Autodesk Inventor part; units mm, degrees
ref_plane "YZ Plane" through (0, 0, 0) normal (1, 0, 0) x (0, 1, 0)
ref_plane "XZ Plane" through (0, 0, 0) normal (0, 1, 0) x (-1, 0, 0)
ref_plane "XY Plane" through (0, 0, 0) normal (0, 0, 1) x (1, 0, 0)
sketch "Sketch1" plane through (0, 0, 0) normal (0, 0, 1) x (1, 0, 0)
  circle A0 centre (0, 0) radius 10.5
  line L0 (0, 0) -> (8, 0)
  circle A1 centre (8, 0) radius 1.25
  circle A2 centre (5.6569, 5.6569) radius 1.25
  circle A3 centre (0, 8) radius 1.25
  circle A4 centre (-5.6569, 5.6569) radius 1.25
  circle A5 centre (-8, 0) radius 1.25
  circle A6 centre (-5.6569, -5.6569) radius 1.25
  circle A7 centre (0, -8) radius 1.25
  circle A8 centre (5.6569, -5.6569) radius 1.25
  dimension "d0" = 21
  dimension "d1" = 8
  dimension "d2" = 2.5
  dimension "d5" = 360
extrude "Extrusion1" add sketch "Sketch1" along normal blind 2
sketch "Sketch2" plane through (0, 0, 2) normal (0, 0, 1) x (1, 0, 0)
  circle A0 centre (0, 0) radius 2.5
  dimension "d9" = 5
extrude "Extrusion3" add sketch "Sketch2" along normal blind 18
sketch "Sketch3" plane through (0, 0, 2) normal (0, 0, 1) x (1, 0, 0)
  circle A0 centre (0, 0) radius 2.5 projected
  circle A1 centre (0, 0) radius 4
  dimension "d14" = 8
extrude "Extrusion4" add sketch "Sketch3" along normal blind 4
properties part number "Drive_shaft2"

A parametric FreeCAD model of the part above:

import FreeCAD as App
import Part
import Sketcher
from FreeCAD import Vector
Q = App.Units.Quantity

doc = App.newDocument("Part")
body = doc.addObject("PartDesign::Body", "Body")

sketch1 = doc.addObject("Sketcher::SketchObject", "Sketch")
body.addObject(sketch1)
sketch1.AttachmentSupport = (doc.XY_Plane, [""])
sketch1.MapMode = "FlatFace"
sketch1.addGeometry([
    Part.Circle(Vector(0, 0, 0), Vector(0, 0, 1), 10.5),
    Part.Circle(Vector(-5.7, -5.7, 0), Vector(0, 0, 1), 1.2),
    Part.Circle(Vector(0, -8, 0), Vector(0, 0, 1), 1.2),
    Part.Circle(Vector(5.7, -5.7, 0), Vector(0, 0, 1), 1.2),
    Part.Circle(Vector(-8, 0, 0), Vector(0, 0, 1), 1.2),
    Part.Circle(Vector(-5.7, 5.7, 0), Vector(0, 0, 1), 1.2),
    Part.Circle(Vector(8, 0, 0), Vector(0, 0, 1), 1.2),
    Part.Circle(Vector(0, 8, 0), Vector(0, 0, 1), 1.2),
    Part.Circle(Vector(5.7, 5.7, 0), Vector(0, 0, 1), 1.2),
], False)
sketch1.addConstraint([
    Sketcher.Constraint("Coincident", 0, 3, -1, 1),
    Sketcher.Constraint("Equal", 1, 2),
    Sketcher.Constraint("Equal", 2, 3),
    Sketcher.Constraint("Equal", 3, 4),
    Sketcher.Constraint("Equal", 4, 5),
    Sketcher.Constraint("Equal", 5, 6),
    Sketcher.Constraint("Equal", 6, 7),
    Sketcher.Constraint("Equal", 7, 8),
    Sketcher.Constraint("Symmetric", 3, 3, 5, 3, -1, 1),
    Sketcher.Constraint("Symmetric", 4, 3, 6, 3, -1, 1),
    Sketcher.Constraint("Symmetric", 2, 3, 7, 3, -1, 1),
    Sketcher.Constraint("Symmetric", 1, 3, 8, 3, -1, 1),
    Sketcher.Constraint("Symmetric", 1, 3, 3, 3, -2),
    Sketcher.Constraint("PointOnObject", 2, 3, -2),
    Sketcher.Constraint("PointOnObject", 4, 3, -1),
    Sketcher.Constraint("Diameter", 0, Q("21 mm")),
    Sketcher.Constraint("Diameter", 1, Q("2.5 mm")),
    Sketcher.Constraint("DistanceY", 2, 3, -1, 1, Q("8 mm")),
    Sketcher.Constraint("DistanceX", 4, 3, -1, 1, Q("8 mm")),
    Sketcher.Constraint("DistanceX", 1, 3, -1, 1, Q("5.657 mm")),
    Sketcher.Constraint("DistanceY", 1, 3, -1, 1, Q("5.657 mm")),
])
pad1 = doc.addObject("PartDesign::Pad", "Pad")
body.addObject(pad1)
pad1.Profile = sketch1
pad1.Length = 2

sketch2 = doc.addObject("Sketcher::SketchObject", "Sketch001")
body.addObject(sketch2)
sketch2.AttachmentSupport = (doc.XY_Plane, [""])
sketch2.MapMode = "FlatFace"
sketch2.AttachmentOffset = App.Placement(Vector(0, 0, 2), App.Rotation())
sketch2.addGeometry(Part.Circle(Vector(0, 0, 0), Vector(0, 0, 1), 2.5), False)
sketch2.addConstraint([
    Sketcher.Constraint("Coincident", 0, 3, -1, 1),
    Sketcher.Constraint("Diameter", 0, Q("5 mm")),
])
pad2 = doc.addObject("PartDesign::Pad", "Pad001")
body.addObject(pad2)
pad2.Profile = sketch2
pad2.Length = 18

sketch3 = doc.addObject("Sketcher::SketchObject", "Sketch002")
body.addObject(sketch3)
sketch3.AttachmentSupport = (doc.XY_Plane, [""])
sketch3.MapMode = "FlatFace"
sketch3.AttachmentOffset = App.Placement(Vector(0, 0, 2), App.Rotation())
sketch3.addGeometry([
    Part.Circle(Vector(0, 0, 0), Vector(0, 0, 1), 4),
    Part.Circle(Vector(0, 0, 0), Vector(0, 0, 1), 2.5),
], False)
sketch3.addConstraint([
    Sketcher.Constraint("Coincident", 0, 3, -1, 1),
    Sketcher.Constraint("Coincident", 1, 3, -1, 1),
    Sketcher.Constraint("Diameter", 0, Q("8 mm")),
    Sketcher.Constraint("Diameter", 1, Q("5 mm")),
])
pad3 = doc.addObject("PartDesign::Pad", "Pad002")
body.addObject(pad3)
pad3.Profile = sketch3
pad3.Length = 4

doc.recompute()
